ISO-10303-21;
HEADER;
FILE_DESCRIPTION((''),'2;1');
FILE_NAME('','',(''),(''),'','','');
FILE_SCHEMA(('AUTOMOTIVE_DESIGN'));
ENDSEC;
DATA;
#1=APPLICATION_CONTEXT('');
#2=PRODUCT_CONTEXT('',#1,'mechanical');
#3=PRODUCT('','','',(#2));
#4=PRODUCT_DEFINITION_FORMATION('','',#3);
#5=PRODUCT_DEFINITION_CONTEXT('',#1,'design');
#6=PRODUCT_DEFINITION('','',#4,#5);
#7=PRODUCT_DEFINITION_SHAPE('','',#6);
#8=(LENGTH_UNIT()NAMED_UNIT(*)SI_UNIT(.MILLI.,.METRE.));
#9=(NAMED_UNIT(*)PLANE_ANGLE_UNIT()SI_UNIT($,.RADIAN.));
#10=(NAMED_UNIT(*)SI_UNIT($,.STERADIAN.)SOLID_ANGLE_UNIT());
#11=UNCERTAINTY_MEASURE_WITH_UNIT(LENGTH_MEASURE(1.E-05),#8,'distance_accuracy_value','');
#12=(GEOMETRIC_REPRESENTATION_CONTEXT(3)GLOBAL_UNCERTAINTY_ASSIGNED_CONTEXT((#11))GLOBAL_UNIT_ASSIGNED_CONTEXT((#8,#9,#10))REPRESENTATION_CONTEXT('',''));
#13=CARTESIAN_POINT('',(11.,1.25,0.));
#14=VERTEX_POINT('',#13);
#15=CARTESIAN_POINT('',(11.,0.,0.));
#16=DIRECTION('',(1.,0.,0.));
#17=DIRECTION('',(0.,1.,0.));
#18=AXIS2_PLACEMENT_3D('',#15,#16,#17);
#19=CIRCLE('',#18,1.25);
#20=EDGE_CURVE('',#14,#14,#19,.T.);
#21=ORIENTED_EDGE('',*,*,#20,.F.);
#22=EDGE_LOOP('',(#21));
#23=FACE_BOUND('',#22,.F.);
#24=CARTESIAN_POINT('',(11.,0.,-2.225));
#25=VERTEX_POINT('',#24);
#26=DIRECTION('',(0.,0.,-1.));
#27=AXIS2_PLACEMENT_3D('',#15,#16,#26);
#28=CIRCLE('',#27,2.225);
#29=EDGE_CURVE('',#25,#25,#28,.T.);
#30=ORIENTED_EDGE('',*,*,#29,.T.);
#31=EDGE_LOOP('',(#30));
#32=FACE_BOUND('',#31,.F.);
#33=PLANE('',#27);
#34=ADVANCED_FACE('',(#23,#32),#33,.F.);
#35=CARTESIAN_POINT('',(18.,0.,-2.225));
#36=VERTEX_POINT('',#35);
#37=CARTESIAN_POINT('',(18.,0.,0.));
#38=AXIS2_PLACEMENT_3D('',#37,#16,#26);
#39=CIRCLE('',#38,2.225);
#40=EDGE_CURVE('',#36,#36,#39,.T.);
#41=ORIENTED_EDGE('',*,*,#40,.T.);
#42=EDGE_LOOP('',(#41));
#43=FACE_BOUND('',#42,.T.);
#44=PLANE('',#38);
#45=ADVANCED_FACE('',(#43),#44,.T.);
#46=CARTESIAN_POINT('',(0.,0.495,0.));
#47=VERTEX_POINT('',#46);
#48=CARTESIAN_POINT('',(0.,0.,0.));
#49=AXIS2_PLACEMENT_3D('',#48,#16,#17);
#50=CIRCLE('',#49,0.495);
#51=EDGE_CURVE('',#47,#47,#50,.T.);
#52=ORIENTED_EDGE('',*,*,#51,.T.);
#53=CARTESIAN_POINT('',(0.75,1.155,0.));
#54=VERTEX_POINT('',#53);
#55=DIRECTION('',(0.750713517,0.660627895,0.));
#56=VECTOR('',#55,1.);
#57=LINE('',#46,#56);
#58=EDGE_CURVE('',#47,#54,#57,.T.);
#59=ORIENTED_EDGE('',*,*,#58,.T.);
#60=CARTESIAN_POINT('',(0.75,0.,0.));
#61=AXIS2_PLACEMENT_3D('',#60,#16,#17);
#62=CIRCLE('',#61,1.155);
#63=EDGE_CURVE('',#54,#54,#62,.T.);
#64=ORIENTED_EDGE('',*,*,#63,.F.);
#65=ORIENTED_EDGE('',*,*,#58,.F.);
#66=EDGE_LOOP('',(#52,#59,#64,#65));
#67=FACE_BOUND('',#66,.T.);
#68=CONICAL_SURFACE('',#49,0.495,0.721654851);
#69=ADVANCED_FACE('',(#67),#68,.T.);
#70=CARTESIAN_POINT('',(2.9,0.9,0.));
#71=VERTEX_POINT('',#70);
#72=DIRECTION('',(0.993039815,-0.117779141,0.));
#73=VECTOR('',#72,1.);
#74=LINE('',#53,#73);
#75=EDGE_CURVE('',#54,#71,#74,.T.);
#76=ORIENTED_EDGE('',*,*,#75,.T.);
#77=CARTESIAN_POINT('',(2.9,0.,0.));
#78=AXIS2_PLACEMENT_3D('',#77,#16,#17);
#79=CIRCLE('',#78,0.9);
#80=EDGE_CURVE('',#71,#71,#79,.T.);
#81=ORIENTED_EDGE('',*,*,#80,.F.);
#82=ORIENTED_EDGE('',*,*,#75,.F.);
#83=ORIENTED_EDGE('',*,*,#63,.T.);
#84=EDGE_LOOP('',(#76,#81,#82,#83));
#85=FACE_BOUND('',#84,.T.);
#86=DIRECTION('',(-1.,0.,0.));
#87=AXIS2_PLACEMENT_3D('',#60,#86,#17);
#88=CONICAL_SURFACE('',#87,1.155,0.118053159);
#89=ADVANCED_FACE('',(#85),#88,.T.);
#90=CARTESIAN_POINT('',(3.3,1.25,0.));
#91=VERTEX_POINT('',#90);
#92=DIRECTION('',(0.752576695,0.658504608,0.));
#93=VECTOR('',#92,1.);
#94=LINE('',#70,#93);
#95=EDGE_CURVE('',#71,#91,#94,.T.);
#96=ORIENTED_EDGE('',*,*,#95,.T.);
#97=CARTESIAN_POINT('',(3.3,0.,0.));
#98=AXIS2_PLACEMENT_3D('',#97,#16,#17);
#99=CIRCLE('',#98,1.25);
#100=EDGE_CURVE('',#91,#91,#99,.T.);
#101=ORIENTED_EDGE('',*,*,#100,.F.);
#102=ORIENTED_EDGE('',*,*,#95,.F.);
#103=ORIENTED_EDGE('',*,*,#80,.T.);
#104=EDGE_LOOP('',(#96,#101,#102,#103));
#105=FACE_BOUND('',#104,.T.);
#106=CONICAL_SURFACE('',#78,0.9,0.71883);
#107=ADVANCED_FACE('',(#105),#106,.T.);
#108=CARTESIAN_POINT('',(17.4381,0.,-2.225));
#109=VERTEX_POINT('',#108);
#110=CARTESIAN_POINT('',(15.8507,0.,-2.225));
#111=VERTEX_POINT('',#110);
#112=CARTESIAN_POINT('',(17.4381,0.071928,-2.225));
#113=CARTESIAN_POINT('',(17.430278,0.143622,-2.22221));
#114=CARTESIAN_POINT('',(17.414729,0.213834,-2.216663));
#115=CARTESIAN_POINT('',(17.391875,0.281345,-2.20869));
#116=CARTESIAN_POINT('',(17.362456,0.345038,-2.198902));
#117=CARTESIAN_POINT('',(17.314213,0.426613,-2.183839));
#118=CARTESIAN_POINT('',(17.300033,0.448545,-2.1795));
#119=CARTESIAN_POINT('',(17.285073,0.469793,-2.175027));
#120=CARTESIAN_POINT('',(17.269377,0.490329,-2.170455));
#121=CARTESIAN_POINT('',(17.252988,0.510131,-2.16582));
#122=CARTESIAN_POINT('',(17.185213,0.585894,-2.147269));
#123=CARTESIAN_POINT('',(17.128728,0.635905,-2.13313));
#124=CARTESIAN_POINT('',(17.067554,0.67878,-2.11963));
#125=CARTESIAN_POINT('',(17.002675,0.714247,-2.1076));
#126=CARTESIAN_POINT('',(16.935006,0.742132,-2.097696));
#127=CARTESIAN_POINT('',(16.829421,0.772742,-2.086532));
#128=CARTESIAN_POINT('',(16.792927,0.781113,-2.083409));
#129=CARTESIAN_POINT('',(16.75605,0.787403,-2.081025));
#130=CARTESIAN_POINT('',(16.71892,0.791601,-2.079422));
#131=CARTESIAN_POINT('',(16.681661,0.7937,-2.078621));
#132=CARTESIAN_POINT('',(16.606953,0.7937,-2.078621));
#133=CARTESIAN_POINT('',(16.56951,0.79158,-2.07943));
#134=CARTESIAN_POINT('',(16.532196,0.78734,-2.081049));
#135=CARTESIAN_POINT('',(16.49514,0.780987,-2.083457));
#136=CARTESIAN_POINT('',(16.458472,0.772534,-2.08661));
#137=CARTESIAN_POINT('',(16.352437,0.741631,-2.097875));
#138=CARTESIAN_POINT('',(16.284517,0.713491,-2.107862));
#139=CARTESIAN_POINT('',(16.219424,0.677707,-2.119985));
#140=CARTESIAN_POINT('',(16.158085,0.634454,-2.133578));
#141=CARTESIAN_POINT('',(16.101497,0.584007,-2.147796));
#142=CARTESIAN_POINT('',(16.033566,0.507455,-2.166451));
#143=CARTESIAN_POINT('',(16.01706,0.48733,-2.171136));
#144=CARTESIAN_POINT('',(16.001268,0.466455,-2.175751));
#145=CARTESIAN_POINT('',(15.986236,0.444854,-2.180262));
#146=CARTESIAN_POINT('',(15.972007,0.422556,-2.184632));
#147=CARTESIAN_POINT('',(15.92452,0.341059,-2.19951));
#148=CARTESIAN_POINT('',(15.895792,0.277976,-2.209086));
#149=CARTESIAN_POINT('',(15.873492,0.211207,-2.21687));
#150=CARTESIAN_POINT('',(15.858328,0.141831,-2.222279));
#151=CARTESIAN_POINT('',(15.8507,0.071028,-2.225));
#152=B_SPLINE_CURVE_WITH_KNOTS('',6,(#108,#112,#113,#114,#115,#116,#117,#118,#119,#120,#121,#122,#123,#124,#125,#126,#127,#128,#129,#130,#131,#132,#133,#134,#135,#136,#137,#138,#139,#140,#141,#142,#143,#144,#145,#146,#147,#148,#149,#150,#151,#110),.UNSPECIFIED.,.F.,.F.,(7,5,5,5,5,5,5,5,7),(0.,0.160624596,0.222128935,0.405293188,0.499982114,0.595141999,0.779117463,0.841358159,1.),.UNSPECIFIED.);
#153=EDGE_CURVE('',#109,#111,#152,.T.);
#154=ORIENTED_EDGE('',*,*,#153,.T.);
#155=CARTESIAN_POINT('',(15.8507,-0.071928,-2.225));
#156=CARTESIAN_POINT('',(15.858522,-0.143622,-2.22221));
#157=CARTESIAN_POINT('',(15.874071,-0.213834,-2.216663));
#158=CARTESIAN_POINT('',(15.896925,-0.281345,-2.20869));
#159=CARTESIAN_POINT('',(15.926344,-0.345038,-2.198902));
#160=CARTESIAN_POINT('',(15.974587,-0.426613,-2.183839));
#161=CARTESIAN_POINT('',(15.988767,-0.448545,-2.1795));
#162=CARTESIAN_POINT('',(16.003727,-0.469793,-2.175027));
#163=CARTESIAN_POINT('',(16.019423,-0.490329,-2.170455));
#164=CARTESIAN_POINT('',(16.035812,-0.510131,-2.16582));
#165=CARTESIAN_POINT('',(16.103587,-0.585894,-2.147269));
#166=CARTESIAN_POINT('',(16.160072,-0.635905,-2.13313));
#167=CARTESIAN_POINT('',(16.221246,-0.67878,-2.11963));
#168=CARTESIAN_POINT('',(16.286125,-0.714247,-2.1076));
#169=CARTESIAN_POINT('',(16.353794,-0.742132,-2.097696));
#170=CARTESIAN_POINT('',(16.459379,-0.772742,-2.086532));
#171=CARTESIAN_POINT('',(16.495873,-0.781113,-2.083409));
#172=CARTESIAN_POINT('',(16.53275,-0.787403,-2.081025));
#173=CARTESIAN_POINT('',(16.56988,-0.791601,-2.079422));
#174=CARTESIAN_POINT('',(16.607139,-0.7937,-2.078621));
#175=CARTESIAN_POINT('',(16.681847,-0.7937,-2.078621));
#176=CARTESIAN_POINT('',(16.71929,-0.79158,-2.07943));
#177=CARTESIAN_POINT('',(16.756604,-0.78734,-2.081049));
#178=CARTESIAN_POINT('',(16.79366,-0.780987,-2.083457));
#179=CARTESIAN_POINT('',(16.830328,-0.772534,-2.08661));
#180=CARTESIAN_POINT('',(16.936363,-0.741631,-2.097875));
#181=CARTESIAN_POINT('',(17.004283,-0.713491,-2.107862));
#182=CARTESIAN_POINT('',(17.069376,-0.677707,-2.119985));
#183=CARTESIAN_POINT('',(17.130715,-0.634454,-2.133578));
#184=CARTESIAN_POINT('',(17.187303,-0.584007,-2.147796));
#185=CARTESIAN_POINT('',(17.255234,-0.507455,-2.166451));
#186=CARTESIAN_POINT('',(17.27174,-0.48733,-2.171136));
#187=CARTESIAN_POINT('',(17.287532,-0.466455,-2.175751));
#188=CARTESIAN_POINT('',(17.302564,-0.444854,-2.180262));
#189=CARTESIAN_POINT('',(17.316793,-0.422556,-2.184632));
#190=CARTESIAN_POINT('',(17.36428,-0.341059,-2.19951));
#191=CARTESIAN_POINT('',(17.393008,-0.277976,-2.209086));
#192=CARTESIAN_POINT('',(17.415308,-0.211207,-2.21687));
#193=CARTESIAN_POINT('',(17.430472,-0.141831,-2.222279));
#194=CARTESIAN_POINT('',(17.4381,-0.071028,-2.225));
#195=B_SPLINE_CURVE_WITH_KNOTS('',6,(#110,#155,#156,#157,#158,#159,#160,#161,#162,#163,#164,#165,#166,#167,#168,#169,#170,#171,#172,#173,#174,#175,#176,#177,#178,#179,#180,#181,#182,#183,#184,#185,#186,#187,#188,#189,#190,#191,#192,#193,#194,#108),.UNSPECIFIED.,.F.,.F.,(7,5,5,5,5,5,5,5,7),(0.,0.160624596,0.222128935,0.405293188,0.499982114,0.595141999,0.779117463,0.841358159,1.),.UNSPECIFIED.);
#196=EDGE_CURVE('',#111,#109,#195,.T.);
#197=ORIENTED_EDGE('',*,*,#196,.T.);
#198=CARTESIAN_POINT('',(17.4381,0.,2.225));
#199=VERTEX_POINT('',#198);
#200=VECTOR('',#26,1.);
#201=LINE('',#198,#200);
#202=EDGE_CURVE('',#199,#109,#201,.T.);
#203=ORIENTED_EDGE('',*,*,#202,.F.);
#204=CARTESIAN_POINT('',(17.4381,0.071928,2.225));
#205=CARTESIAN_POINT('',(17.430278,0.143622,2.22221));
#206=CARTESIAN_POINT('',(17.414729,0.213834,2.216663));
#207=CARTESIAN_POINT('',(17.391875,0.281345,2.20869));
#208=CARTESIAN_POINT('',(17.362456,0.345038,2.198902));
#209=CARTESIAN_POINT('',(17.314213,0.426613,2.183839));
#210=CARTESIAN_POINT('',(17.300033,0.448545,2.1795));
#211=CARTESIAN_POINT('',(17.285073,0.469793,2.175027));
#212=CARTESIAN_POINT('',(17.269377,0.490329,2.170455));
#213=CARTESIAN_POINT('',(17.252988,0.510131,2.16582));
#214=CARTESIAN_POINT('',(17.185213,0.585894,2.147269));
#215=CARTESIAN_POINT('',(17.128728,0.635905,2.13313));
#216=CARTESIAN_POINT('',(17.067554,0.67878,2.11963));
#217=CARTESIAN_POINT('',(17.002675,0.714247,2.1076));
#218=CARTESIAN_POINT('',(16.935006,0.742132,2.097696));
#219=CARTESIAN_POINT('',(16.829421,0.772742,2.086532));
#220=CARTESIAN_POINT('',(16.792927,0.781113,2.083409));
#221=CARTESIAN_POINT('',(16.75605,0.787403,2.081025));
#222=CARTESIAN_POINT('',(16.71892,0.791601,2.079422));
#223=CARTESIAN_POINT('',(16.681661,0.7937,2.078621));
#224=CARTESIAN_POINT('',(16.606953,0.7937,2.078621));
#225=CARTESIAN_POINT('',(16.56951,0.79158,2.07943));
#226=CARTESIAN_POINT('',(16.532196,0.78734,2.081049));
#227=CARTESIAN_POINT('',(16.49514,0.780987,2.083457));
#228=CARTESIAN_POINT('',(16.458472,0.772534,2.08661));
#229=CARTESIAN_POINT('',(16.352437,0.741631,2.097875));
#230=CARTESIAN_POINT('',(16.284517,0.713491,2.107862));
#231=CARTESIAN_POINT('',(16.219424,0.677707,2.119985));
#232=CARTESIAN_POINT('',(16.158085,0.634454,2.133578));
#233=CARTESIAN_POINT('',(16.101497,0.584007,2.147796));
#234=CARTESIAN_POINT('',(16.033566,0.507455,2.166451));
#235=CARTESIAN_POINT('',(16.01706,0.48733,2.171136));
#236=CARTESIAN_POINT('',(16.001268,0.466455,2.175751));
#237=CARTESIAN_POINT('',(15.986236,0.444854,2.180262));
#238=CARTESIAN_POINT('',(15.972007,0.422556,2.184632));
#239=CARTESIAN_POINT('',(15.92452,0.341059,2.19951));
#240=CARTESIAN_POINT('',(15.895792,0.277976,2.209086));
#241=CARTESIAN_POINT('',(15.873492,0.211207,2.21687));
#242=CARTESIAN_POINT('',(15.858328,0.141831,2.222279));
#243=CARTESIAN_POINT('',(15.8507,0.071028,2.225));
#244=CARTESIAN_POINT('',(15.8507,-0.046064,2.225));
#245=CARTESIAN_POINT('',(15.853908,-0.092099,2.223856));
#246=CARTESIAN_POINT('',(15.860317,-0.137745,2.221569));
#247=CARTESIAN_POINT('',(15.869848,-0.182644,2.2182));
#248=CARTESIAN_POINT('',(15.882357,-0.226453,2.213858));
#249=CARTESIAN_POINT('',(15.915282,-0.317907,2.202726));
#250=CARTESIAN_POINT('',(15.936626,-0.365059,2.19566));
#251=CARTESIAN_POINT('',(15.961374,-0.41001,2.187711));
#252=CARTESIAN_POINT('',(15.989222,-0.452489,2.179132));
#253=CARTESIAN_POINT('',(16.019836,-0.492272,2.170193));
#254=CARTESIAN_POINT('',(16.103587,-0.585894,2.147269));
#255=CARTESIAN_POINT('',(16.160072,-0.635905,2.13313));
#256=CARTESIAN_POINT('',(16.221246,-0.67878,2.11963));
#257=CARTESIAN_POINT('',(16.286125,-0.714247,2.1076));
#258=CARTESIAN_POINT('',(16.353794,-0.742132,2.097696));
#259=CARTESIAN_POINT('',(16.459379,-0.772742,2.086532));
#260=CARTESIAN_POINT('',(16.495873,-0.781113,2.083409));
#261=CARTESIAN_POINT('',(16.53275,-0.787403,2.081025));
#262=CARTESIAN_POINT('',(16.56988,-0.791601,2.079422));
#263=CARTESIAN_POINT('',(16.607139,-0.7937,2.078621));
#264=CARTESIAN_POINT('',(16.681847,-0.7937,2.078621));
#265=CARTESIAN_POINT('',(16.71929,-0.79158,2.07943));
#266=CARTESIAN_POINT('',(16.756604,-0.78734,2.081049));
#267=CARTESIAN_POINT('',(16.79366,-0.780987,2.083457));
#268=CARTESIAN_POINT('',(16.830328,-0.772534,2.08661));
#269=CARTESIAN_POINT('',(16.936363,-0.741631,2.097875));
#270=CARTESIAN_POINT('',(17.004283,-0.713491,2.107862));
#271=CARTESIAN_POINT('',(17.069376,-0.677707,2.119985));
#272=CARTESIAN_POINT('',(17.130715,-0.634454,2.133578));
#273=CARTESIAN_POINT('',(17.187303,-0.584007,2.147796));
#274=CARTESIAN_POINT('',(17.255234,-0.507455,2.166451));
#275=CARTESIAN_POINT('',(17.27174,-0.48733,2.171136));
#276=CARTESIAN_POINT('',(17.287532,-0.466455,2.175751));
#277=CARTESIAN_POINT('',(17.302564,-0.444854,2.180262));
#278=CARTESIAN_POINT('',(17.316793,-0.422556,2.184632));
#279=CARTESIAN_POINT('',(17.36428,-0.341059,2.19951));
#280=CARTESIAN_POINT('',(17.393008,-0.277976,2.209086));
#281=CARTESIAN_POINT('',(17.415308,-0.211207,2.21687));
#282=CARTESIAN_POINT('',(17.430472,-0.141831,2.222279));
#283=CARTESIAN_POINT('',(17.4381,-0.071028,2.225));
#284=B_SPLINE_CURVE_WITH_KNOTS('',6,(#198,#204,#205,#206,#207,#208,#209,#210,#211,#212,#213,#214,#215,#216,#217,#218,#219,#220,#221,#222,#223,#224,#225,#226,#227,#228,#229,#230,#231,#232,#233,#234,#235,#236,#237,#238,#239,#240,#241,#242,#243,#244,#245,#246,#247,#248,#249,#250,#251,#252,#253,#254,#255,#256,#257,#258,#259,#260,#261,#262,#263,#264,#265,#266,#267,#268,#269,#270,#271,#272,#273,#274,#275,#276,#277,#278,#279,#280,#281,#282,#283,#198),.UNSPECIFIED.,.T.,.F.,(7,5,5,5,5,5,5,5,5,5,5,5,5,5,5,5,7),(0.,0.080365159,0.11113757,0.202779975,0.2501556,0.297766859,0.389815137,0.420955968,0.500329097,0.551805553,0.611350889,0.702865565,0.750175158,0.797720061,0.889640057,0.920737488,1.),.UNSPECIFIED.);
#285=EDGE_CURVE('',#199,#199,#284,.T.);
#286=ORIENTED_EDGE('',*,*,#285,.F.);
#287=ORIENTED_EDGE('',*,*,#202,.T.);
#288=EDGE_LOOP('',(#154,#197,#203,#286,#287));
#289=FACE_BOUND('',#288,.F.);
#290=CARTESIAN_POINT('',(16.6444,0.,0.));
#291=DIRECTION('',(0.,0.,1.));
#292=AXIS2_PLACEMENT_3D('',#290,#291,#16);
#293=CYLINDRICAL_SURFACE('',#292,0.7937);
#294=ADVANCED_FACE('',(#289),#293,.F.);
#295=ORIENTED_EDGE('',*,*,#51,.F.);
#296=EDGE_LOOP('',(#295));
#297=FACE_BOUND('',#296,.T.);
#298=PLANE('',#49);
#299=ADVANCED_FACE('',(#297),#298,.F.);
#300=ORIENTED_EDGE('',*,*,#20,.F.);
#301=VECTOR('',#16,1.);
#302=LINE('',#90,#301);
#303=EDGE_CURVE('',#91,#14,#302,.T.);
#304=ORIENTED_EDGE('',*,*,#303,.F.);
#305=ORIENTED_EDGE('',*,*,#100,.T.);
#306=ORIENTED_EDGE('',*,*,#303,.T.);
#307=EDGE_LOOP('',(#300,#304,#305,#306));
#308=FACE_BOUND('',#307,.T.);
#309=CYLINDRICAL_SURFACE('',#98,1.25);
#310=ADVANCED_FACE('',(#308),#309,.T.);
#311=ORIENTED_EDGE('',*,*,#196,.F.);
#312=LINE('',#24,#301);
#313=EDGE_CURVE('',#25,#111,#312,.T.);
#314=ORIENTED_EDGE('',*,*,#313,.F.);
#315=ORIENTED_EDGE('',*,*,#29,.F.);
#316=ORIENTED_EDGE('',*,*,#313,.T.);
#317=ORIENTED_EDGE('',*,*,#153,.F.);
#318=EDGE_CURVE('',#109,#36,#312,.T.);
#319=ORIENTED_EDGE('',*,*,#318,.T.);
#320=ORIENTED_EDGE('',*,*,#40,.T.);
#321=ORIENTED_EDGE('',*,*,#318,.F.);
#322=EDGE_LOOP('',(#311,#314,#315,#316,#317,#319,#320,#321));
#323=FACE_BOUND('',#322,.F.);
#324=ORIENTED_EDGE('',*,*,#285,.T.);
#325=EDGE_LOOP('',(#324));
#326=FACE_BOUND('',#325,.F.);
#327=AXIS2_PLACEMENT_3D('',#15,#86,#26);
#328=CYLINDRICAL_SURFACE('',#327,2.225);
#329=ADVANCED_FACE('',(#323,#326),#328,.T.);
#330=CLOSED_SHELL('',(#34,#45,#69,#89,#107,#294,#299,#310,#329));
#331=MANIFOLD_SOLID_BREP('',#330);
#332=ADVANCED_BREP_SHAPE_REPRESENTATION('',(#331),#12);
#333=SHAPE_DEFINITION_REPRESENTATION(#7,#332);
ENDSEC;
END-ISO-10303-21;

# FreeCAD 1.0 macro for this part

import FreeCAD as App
import Part
import Sketcher

V = App.Vector

doc = App.newDocument("Part")
body = doc.addObject("PartDesign::Body", "Body")

# Sketch on XY plane
sketch1 = doc.addObject("Sketcher::SketchObject", "Sketch")
body.addObject(sketch1)
sketch1.AttachmentSupport = (doc.XY_Plane, [""])
sketch1.MapMode = "FlatFace"
sketch1.addGeometry([
    Part.LineSegment(V(0, 0.49, 0), V(0, 0, 0)),  # 0
    Part.LineSegment(V(0, 0, 0), V(11, 0, 0)),  # 1
    Part.LineSegment(V(11, 0, 0), V(11, 1.25, 0)),  # 2
    Part.LineSegment(V(11, 1.25, 0), V(3.3, 1.25, 0)),  # 3
    Part.LineSegment(V(3.3, 1.25, 0), V(2.9, 0.9, 0)),  # 4
    Part.LineSegment(V(2.9, 0.9, 0), V(0.75, 1.16, 0)),  # 5
    Part.LineSegment(V(0.75, 1.16, 0), V(0, 0.49, 0)),  # 6
], False)
sketch1.addConstraint([
    Sketcher.Constraint("Coincident", 0, 2, 1, 1),
    Sketcher.Constraint("Coincident", 1, 2, 2, 1),
    Sketcher.Constraint("Coincident", 2, 2, 3, 1),
    Sketcher.Constraint("Coincident", 3, 2, 4, 1),
    Sketcher.Constraint("Coincident", 4, 2, 5, 1),
    Sketcher.Constraint("Coincident", 5, 2, 6, 1),
    Sketcher.Constraint("Coincident", 6, 2, 0, 1),
    Sketcher.Constraint("Vertical", 0),
    Sketcher.Constraint("Horizontal", 1),
    Sketcher.Constraint("Vertical", 2),
    Sketcher.Constraint("Horizontal", 3),
    Sketcher.Constraint("Coincident", 0, 2, -1, 1),
    Sketcher.Constraint("DistanceX", 1, 1, 1, 2, 11.0),
    Sketcher.Constraint("DistanceX", -1, 1, 3, 2, 3.3),
    Sketcher.Constraint("DistanceX", -1, 1, 4, 2, 2.9),
    Sketcher.Constraint("DistanceX", -1, 1, 5, 2, 0.75),
    Sketcher.Constraint("DistanceY", 2, 1, 2, 2, 1.25),
    Sketcher.Constraint("DistanceY", -1, 1, 4, 2, 0.9),
    Sketcher.Constraint("DistanceY", 0, 2, 0, 1, 0.495),
    Sketcher.Constraint("DistanceY", 6, 2, 5, 2, 0.66),
])
revolution = doc.addObject("PartDesign::Revolution", "Revolution")
body.addObject(revolution)
revolution.Profile = sketch1
revolution.ReferenceAxis = (sketch1, ["H_Axis"])
revolution.Angle = 360

# Sketch on YZ plane
sketch2 = doc.addObject("Sketcher::SketchObject", "Sketch001")
body.addObject(sketch2)
sketch2.AttachmentSupport = (doc.YZ_Plane, [""])
sketch2.MapMode = "FlatFace"
sketch2.AttachmentOffset = App.Placement(V(0, 0, 11), App.Rotation())
sketch2.addGeometry(Part.Circle(V(0, 0, 0), V(0, 0, 1), 2.2), False)
sketch2.addConstraint([
    Sketcher.Constraint("Coincident", 0, 3, -1, 1),
    Sketcher.Constraint("Diameter", 0, 4.45),
])
pad1 = doc.addObject("PartDesign::Pad", "Pad")
body.addObject(pad1)
pad1.Profile = sketch2
pad1.Length = 7

# Sketch on XY plane
sketch3 = doc.addObject("Sketcher::SketchObject", "Sketch002")
body.addObject(sketch3)
sketch3.AttachmentSupport = (doc.XY_Plane, [""])
sketch3.MapMode = "FlatFace"
sketch3.addGeometry(Part.Circle(V(16.6, 0, 0), V(0, 0, 1), 0.8), False)
sketch3.addConstraint([
    Sketcher.Constraint("PointOnObject", 0, 3, -1),
    Sketcher.Constraint("Diameter", 0, 1.5874),
    Sketcher.Constraint("DistanceX", -1, 1, 0, 3, 16.6444),
])
pocket1 = doc.addObject("PartDesign::Pocket", "Pocket")
body.addObject(pocket1)
pocket1.Profile = sketch3
pocket1.Type = "ThroughAll"
pocket1.Midplane = True

doc.recompute()
